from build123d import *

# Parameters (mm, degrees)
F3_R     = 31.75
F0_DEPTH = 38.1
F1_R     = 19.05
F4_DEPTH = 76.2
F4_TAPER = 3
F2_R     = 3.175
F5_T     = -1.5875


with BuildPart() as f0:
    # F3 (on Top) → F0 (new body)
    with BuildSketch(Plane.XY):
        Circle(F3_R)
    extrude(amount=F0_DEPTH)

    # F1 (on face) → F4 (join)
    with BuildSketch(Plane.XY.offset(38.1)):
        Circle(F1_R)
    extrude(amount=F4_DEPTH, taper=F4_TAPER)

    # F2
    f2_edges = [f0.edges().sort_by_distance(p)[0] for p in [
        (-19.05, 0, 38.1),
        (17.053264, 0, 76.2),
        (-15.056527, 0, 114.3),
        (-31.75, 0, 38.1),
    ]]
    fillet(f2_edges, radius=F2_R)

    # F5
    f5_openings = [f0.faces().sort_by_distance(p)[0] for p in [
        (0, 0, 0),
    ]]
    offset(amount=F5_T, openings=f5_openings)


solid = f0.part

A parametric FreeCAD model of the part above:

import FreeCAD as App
import Part
import Sketcher
Q = App.Units.Quantity


def edges_at(feature, points):
    """Names of the edges that pass closest to the given points."""
    edges = feature.Shape.Edges
    near = lambda p: min(range(len(edges)), key=lambda i: edges[i].distToShape(Part.Vertex(*p))[0])
    return sorted({f"Edge{near(p) + 1}" for p in points})


def faces_at(feature, points):
    """Names of the faces that lie closest to the given points."""
    faces = feature.Shape.Faces
    near = lambda p: min(range(len(faces)), key=lambda i: faces[i].distToShape(Part.Vertex(*p))[0])
    return sorted({f"Face{near(p) + 1}" for p in points})

doc = App.newDocument("Part")
body = doc.addObject("PartDesign::Body", "Body")

# Sketch on XY plane
sketch1 = body.newObject("Sketcher::SketchObject", "Sketch")
sketch1.AttachmentSupport = (doc.getObject("XY_Plane"), [""])
sketch1.MapMode = "FlatFace"
sketch1.addGeometry(Part.Circle(App.Vector(0, 0, 0), App.Vector(0, 0, 1), 31.75), False)
sketch1.addConstraint([
    Sketcher.Constraint("Coincident", 0, 3, -1, 1),
    Sketcher.Constraint("Diameter", 0, Q("2.5 in")),
])
pad1 = body.newObject("PartDesign::Pad", "Pad")
pad1.Profile = sketch1
pad1.Length = Q("1.5 in")

# Sketch on XY plane
sketch2 = body.newObject("Sketcher::SketchObject", "Sketch001")
sketch2.AttachmentSupport = (doc.getObject("XY_Plane"), [""])
sketch2.MapMode = "FlatFace"
sketch2.AttachmentOffset = App.Placement(App.Vector(0, 0, 1.5 * 25.4), App.Rotation())
sketch2.addGeometry(Part.Circle(App.Vector(0, 0, 0), App.Vector(0, 0, 1), 19.05), False)
sketch2.addConstraint([
    Sketcher.Constraint("Coincident", 0, 3, -1, 1),
    Sketcher.Constraint("Diameter", 0, Q("1.5 in")),
])
pad2 = body.newObject("PartDesign::Pad", "Pad001")
pad2.Profile = sketch2
pad2.Length = Q("3 in")
pad2.TaperAngle = -3
doc.recompute()

fillet = body.newObject("PartDesign::Fillet", "Fillet")
fillet.Base = (pad2, edges_at(pad2, [
    (-19.05, 0, 38.1),
    (17.053, 0, 76.2),
    (-15.057, 0, 114.3),
    (-31.75, 0, 38.1),
]))
fillet.Radius = Q("0.125 in")
doc.recompute()

thickness = body.newObject("PartDesign::Thickness", "Thickness")
thickness.Base = (fillet, faces_at(fillet, [(0, 0, 0)]))
thickness.Value = Q("0.0625 in")
thickness.Reversed = True
thickness.Join = "Arc"

doc.recompute()
